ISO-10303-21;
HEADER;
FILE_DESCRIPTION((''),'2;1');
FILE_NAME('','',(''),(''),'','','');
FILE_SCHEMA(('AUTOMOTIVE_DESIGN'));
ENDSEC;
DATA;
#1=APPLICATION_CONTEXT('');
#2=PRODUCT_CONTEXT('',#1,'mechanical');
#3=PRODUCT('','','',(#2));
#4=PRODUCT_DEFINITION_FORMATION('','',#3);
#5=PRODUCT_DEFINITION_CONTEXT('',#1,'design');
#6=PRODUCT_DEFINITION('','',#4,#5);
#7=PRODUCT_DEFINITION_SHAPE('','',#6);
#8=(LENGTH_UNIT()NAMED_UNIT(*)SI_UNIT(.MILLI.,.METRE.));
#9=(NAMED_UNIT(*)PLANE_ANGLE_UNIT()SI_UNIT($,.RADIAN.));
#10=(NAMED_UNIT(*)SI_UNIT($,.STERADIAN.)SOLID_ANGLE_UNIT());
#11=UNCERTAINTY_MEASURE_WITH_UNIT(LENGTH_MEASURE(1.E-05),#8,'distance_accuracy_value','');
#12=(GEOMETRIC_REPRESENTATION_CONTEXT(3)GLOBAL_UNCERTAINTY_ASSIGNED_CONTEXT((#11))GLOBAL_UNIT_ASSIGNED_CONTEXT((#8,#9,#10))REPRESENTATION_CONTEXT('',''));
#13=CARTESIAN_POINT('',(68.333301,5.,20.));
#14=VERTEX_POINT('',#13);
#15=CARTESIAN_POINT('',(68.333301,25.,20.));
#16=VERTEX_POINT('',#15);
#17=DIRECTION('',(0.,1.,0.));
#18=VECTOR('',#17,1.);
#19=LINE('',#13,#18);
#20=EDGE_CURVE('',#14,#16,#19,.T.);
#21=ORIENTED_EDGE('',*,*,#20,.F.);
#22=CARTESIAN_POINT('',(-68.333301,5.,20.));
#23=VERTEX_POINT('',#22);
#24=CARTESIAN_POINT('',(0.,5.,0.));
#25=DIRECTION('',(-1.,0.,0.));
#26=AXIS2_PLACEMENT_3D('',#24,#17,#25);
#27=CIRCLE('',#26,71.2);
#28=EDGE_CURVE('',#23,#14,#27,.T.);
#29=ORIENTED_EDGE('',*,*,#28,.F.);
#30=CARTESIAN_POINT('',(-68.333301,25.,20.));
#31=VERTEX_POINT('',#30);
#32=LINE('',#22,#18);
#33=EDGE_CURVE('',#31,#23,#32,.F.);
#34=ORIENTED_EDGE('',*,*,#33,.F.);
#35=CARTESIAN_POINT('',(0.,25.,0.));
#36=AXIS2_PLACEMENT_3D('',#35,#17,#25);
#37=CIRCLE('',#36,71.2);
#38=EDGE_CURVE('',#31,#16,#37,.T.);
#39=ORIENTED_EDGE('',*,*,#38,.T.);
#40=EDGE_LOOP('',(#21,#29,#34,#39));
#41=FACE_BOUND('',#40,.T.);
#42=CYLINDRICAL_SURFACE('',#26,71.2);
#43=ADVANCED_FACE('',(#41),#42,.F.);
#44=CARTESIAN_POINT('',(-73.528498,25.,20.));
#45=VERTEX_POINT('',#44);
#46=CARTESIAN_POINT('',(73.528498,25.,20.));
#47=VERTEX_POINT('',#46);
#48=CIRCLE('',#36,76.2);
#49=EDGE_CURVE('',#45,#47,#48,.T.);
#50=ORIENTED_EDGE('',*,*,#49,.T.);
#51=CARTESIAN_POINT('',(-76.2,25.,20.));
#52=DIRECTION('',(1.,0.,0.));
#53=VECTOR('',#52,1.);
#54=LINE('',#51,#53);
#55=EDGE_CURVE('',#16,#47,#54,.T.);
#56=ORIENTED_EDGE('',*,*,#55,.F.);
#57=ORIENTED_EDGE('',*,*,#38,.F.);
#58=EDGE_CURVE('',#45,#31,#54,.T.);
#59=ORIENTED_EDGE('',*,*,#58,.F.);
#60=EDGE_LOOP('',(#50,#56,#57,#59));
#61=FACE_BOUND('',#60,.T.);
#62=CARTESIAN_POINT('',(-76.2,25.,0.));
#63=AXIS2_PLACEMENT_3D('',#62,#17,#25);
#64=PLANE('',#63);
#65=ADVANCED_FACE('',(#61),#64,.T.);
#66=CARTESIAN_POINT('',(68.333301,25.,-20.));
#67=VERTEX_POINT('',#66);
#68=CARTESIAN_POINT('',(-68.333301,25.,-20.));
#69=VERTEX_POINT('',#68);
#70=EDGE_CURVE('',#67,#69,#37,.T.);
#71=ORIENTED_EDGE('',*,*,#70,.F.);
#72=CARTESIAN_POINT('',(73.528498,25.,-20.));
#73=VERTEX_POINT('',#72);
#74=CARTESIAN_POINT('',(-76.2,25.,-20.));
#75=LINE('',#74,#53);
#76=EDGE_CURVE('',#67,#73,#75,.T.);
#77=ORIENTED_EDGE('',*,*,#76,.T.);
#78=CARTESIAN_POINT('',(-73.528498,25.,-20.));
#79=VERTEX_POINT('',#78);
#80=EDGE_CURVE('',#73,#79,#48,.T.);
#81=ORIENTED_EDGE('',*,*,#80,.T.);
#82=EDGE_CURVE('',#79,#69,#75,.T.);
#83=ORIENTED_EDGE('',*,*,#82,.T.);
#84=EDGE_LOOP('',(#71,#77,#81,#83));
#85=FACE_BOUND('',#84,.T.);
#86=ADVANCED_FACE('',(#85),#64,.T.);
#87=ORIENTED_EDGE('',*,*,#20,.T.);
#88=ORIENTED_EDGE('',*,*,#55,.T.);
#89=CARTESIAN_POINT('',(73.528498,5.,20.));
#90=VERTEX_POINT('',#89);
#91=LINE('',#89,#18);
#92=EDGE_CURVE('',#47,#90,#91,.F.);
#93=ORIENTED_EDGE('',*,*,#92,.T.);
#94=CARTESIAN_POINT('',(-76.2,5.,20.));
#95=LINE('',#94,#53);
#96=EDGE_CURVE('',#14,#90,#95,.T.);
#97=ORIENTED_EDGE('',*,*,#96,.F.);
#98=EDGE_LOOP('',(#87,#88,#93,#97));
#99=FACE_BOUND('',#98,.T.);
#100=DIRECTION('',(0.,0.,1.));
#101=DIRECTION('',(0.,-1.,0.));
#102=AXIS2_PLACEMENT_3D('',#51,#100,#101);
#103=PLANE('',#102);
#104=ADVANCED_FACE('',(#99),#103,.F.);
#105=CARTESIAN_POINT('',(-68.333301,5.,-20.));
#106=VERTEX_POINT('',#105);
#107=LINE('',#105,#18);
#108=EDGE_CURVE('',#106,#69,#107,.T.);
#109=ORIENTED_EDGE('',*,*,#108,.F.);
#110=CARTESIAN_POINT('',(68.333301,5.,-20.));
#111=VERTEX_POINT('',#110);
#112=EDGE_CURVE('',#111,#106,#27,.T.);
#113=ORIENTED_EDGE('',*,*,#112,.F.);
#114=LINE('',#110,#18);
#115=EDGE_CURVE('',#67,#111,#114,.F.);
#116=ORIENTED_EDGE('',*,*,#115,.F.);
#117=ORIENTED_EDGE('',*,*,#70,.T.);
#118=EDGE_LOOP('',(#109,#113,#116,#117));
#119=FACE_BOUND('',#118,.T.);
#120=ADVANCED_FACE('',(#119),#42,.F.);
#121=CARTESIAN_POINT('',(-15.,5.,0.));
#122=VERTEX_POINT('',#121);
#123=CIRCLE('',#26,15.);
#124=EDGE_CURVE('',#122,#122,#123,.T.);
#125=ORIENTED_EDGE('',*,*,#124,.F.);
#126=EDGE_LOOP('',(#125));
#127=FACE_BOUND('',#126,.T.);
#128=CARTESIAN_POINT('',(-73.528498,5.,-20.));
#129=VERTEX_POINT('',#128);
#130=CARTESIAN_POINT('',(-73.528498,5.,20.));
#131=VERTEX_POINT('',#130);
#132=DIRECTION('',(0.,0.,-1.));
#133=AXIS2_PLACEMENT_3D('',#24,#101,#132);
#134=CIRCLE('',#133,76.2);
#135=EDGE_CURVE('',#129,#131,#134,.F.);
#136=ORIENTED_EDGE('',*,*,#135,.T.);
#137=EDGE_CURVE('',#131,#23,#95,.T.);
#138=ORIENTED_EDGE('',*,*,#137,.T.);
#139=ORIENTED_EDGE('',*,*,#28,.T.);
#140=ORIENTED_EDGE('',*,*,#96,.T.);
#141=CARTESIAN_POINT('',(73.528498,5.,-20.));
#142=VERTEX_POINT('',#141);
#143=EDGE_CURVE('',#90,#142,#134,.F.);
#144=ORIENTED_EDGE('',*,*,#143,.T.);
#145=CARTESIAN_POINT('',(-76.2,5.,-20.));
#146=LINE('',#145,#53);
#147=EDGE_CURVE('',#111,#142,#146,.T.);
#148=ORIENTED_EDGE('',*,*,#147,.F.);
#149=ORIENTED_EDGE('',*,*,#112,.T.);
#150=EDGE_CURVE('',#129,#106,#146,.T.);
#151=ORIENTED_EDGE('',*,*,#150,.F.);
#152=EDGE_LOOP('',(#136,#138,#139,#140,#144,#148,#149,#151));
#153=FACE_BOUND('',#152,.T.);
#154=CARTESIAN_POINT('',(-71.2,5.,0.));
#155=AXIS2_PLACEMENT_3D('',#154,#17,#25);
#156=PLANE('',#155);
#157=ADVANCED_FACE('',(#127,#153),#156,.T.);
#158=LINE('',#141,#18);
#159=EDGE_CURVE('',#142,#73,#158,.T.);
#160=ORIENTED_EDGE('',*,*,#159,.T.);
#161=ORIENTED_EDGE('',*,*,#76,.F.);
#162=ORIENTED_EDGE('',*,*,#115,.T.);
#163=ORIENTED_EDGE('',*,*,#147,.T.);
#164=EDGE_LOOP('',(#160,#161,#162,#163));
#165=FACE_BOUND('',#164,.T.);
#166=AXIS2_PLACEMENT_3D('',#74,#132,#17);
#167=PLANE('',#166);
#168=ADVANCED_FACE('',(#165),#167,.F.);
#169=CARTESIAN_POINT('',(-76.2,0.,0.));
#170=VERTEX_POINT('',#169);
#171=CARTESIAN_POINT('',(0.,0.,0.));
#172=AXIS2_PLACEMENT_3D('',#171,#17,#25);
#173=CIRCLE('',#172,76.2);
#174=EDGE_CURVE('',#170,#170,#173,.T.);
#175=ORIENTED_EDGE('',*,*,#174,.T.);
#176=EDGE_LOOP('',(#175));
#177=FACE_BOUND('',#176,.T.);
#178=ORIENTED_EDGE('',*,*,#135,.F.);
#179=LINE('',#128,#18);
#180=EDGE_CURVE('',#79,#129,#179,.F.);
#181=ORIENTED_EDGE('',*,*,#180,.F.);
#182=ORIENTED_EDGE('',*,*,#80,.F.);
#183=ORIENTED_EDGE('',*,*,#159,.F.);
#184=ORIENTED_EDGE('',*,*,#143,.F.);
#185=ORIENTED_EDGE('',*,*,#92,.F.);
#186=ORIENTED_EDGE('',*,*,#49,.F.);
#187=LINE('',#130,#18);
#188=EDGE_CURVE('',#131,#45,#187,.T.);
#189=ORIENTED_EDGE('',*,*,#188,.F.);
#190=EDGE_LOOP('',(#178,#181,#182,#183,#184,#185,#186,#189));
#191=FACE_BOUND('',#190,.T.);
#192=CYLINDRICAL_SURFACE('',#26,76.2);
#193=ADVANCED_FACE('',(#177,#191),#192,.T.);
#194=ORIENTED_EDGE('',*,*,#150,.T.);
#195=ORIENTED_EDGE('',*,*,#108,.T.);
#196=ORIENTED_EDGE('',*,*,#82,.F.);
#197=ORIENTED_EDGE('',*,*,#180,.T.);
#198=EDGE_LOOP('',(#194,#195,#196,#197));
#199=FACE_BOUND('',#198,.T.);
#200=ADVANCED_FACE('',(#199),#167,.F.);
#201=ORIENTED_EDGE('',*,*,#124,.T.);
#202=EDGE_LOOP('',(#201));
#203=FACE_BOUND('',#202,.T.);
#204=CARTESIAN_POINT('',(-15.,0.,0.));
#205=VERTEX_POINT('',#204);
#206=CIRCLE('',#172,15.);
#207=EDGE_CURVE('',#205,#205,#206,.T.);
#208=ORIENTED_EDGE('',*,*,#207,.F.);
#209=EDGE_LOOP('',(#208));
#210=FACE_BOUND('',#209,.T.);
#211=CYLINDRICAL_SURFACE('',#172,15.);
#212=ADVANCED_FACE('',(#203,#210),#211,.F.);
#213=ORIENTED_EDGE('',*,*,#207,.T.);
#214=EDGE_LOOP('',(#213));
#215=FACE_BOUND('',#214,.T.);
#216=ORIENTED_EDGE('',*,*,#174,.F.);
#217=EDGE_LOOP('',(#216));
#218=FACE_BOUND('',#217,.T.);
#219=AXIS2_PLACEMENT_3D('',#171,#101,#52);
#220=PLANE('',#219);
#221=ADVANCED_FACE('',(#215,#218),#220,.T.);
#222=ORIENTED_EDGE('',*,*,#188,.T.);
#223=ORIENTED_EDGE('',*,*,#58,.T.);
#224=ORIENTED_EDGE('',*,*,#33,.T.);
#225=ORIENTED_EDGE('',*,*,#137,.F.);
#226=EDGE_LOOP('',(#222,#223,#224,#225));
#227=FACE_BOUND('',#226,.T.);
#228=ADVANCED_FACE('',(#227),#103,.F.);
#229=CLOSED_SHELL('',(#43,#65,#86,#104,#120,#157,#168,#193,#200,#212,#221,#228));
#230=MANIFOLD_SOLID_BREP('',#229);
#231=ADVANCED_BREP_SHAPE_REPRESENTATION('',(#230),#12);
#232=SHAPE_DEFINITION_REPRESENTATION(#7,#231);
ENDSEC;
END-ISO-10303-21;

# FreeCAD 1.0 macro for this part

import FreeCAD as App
import Part
import Sketcher

V = App.Vector
Q = App.Units.Quantity


def add_polygon(sketch, points):
    """Adds a closed chain of lines whose ends are joined by coincident constraints."""
    first, n = sketch.GeometryCount, len(points)
    for a, b in zip(points, points[1:] + points[:1]):
        sketch.addGeometry(Part.LineSegment(App.Vector(*a, 0), App.Vector(*b, 0)), False)
    for i in range(n):
        sketch.addConstraint(Sketcher.Constraint("Coincident", first + i, 2, first + (i + 1) % n, 1))

doc = App.newDocument("Part")
params = doc.addObject("Spreadsheet::Sheet", "Params")
for row, (alias, value) in enumerate([
    ("sketch1_width", "5 mm"),
    ("sketch1_height", "20 mm"),
    ("sketch1_width2", "76.2 mm"),
    ("revolution_angle", "360 deg"),
    ("sketch2_width", "20 mm"),
    ("sketch2_height", "40 mm"),
    ("sketch3_diameter", "30 mm"),
], start=1):
    params.set(f"A{row}", alias)
    params.set(f"B{row}", "=" + value)
    params.setAlias(f"B{row}", alias)

body = doc.addObject("PartDesign::Body", "Body")

sketch1 = body.newObject("Sketcher::SketchObject", "Sketch")
sketch1.AttachmentSupport = (doc.getObject("XY_Plane"), [""])
sketch1.MapMode = "FlatFace"
add_polygon(sketch1, [(-76, 0), (0, 0), (0, 5), (-71, 5), (-71, 25), (-76, 25)])
sketch1.addConstraint(Sketcher.Constraint("Horizontal", 0))
sketch1.addConstraint(Sketcher.Constraint("Vertical", 1))
sketch1.addConstraint(Sketcher.Constraint("Horizontal", 2))
sketch1.addConstraint(Sketcher.Constraint("Vertical", 3))
sketch1.addConstraint(Sketcher.Constraint("Horizontal", 4))
sketch1.addConstraint(Sketcher.Constraint("Vertical", 5))
sketch1.addConstraint(Sketcher.Constraint("Coincident", 0, 2, -1, 1))
sketch1.addConstraint(Sketcher.Constraint("Equal", 4, 1))
sketch1.addConstraint(Sketcher.Constraint("DistanceX", 4, 2, 4, 1, Q("5 mm")))
sketch1.addConstraint(Sketcher.Constraint("DistanceY", 3, 1, 3, 2, Q("20 mm")))
sketch1.addConstraint(Sketcher.Constraint("DistanceX", 0, 1, 0, 2, Q("76.2 mm")))
sketch1.setExpression("Constraints[14]", "Params.sketch1_width")
sketch1.setExpression("Constraints[15]", "Params.sketch1_height")
sketch1.setExpression("Constraints[16]", "Params.sketch1_width2")
revolution = body.newObject("PartDesign::Revolution", "Revolution")
revolution.Profile = sketch1
revolution.ReferenceAxis = (sketch1, ["V_Axis"])
revolution.setExpression("Angle", "Params.revolution_angle")

sketch2 = body.newObject("Sketcher::SketchObject", "Sketch001")
sketch2.AttachmentSupport = (doc.getObject("YZ_Plane"), [""])
sketch2.MapMode = "FlatFace"
add_polygon(sketch2, [(25, 20), (5, 20), (5, -20), (25, -20)])
sketch2.addConstraint(Sketcher.Constraint("Horizontal", 0))
sketch2.addConstraint(Sketcher.Constraint("Vertical", 1))
sketch2.addConstraint(Sketcher.Constraint("Horizontal", 2))
sketch2.addConstraint(Sketcher.Constraint("Vertical", 3))
sketch2.addConstraint(Sketcher.Constraint("DistanceX", 0, 2, 0, 1, Q("20 mm")))
sketch2.addConstraint(Sketcher.Constraint("DistanceY", 1, 2, 1, 1, Q("40 mm")))
sketch2.addConstraint(Sketcher.Constraint("DistanceX", -1, 1, 0, 2, Q("5 mm")))
sketch2.addConstraint(Sketcher.Constraint("DistanceY", -1, 1, 0, 2, Q("20 mm")))
sketch2.setExpression("Constraints[8]", "Params.sketch2_width")
sketch2.setExpression("Constraints[9]", "Params.sketch2_height")
pocket1 = body.newObject("PartDesign::Pocket", "Pocket")
pocket1.Profile = sketch2
pocket1.Type = "ThroughAll"
pocket1.Midplane = True

sketch3 = body.newObject("Sketcher::SketchObject", "Sketch002")
sketch3.AttachmentSupport = (doc.getObject("XZ_Plane"), [""])
sketch3.MapMode = "FlatFace"
sketch3.AttachmentOffset = App.Placement(V(0, 0, -5), App.Rotation())
sketch3.addGeometry(Part.Circle(V(0, 0, 0), V(0, 0, 1), 15), False)
sketch3.addConstraint(Sketcher.Constraint("Coincident", 0, 3, -1, 1))
sketch3.addConstraint(Sketcher.Constraint("Diameter", 0, Q("30 mm")))
sketch3.setExpression("Constraints[1]", "Params.sketch3_diameter")
pocket2 = body.newObject("PartDesign::Pocket", "Pocket001")
pocket2.Profile = sketch3
pocket2.Type = "ThroughAll"
pocket2.Midplane = True

doc.recompute()
